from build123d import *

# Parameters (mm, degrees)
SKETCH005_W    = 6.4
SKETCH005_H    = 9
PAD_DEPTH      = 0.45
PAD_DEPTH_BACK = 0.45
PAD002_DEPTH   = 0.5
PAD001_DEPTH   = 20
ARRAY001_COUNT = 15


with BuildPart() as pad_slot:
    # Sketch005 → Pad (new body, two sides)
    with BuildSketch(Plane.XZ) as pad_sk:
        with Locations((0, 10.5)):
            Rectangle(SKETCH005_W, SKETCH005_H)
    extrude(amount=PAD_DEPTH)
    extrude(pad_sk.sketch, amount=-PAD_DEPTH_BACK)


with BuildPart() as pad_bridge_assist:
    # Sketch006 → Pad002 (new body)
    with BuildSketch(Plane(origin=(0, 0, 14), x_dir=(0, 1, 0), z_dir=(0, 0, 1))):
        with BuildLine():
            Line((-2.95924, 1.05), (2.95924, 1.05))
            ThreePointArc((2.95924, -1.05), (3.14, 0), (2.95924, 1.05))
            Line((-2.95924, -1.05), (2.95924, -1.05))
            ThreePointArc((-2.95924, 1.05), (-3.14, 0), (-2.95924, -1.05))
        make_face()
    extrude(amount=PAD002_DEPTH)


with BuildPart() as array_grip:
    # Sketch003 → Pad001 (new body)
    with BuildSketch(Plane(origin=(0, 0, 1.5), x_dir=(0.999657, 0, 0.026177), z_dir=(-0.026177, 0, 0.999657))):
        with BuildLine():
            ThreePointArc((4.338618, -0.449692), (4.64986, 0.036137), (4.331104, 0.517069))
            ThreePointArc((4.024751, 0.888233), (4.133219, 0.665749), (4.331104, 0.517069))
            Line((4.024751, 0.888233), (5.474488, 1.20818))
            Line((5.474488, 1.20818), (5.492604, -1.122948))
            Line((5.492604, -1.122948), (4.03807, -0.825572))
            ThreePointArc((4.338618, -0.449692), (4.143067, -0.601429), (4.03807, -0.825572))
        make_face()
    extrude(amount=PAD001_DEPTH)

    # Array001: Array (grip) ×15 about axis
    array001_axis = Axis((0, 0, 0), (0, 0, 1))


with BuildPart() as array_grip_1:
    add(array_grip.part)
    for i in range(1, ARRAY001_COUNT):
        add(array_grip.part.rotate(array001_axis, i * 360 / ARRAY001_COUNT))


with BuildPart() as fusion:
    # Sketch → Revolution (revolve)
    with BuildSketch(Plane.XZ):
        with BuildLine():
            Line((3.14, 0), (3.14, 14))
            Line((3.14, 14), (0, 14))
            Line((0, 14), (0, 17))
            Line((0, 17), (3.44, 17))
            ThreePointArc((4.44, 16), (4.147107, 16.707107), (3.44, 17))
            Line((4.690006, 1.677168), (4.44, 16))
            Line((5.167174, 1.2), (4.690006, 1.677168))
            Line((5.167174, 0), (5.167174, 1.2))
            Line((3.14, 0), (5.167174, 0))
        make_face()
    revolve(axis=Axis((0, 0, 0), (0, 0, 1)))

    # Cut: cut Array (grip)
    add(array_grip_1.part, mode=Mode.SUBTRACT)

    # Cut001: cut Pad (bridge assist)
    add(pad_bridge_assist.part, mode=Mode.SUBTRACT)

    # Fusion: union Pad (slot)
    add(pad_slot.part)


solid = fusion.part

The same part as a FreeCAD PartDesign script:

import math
import FreeCAD as App
import Part
import Sketcher
Q = App.Units.Quantity


def add_polygon(sketch, points):
    """Adds a closed chain of lines whose ends are joined by coincident constraints."""
    first, n = sketch.GeometryCount, len(points)
    for a, b in zip(points, points[1:] + points[:1]):
        sketch.addGeometry(Part.LineSegment(App.Vector(*a, 0), App.Vector(*b, 0)), False)
    for i in range(n):
        sketch.addConstraint(Sketcher.Constraint("Coincident", first + i, 2, first + (i + 1) % n, 1))

doc = App.newDocument("Part")
params = doc.addObject("Spreadsheet::Sheet", "Params")
for row, (alias, value) in enumerate([
    ("sketch1_height", "9 mm"),
    ("sketch1_width", "6.4 mm"),
    ("pad1_length", "0.45 mm"),
    ("pad1_length2", "0.45 mm"),
    ("pad2_length", "0.5 mm"),
    ("pad3_length", "20 mm"),
    ("sketch4_radius", "0.999999 mm"),
    ("sketch4_height", "14 mm"),
    ("sketch4_height2", "3 mm"),
    ("sketch4_height3", "1.2 mm"),
    ("sketch4_width", "3.44 mm"),
    ("revolution_angle", "360 deg"),
], start=1):
    params.set(f"A{row}", alias)
    params.set(f"B{row}", "=" + value)
    params.setAlias(f"B{row}", alias)

body = doc.addObject("PartDesign::Body", "Body")

sketch1 = body.newObject("Sketcher::SketchObject", "Sketch")
sketch1.AttachmentSupport = (doc.getObject("XZ_Plane"), [""])
sketch1.MapMode = "FlatFace"
add_polygon(sketch1, [(-3, 15), (-3, 6), (3, 6), (3, 15)])
sketch1.addConstraint([
    Sketcher.Constraint("Vertical", 0),
    Sketcher.Constraint("Horizontal", 1),
    Sketcher.Constraint("Vertical", 2),
    Sketcher.Constraint("Horizontal", 3),
    Sketcher.Constraint("DistanceY", 0, 2, 0, 1, Q("9 mm")),
    Sketcher.Constraint("DistanceX", 1, 1, 1, 2, Q("6.4 mm")),
    Sketcher.Constraint("DistanceY", -1, 1, 0, 2, Q("6 mm")),
    Sketcher.Constraint("DistanceX", 0, 2, -1, 1, Q("3.2 mm")),
])
sketch1.setExpression("Constraints[8]", "Params.sketch1_height")
sketch1.setExpression("Constraints[9]", "Params.sketch1_width")
pad1 = body.newObject("PartDesign::Pad", "Pad")
pad1.Profile = sketch1
pad1.Type = "TwoLengths"
pad1.setExpression("Length", "Params.pad1_length")
pad1.setExpression("Length2", "Params.pad1_length2")
body2 = doc.addObject("PartDesign::Body", "Body001")

sketch2 = body2.newObject("Sketcher::SketchObject", "Sketch001")
sketch2.AttachmentSupport = (doc.getObject("XY_Plane001"), [""])
sketch2.MapMode = "FlatFace"
sketch2.AttachmentOffset = App.Placement(App.Vector(0, 0, 14), App.Rotation())
sketch2.addGeometry([
    Part.LineSegment(App.Vector(-1.1, 3, 0), App.Vector(-1.1, -3, 0)),
    Part.ArcOfCircle(Part.Circle(App.Vector(0, 0, 0), App.Vector(0, 0, 1), 3.1), math.radians(-110), math.radians(-70)),
    Part.LineSegment(App.Vector(1.1, -3, 0), App.Vector(1.1, 3, 0)),
    Part.ArcOfCircle(Part.Circle(App.Vector(0, 0, 0), App.Vector(0, 0, 1), 3.1), math.radians(70), math.radians(110)),
], False)
sketch2.addConstraint([
    Sketcher.Constraint("Coincident", 0, 2, 1, 1),
    Sketcher.Constraint("Coincident", 1, 2, 2, 1),
    Sketcher.Constraint("Coincident", 2, 2, 3, 1),
    Sketcher.Constraint("Coincident", 3, 2, 0, 1),
    Sketcher.Constraint("Vertical", 0),
    Sketcher.Constraint("Vertical", 2),
    Sketcher.Constraint("Coincident", 1, 3, -1, 1),
    Sketcher.Constraint("Coincident", 3, 3, -1, 1),
    Sketcher.Constraint("Equal", 1, 3),
    Sketcher.Constraint("Horizontal", 0, 2, 1, 2),
    Sketcher.Constraint("DistanceX", 0, 2, 1, 2, Q("2.1 mm")),
    Sketcher.Constraint("Radius", 1, Q("3.140004 mm")),
])
pad2 = body2.newObject("PartDesign::Pad", "Pad001")
pad2.Profile = sketch2
pad2.setExpression("Length", "Params.pad2_length")
body3 = doc.addObject("PartDesign::Body", "Body002")

sketch3 = body3.newObject("Sketcher::SketchObject", "Sketch002")
sketch3.Placement = App.Placement(App.Vector(0, 0, 1.5), App.Rotation(App.Vector(0.999657323, 0, 0.026177008), App.Vector(0, 0.999999999, 0), App.Vector(-0.026177008, 0, 0.999657323), "ZXY"))
sketch3.addGeometry([
    Part.ArcOfCircle(Part.Circle(App.Vector(4.12, 0.03, 0), App.Vector(0, 0, 1), 0.53), math.radians(-66), math.radians(67)),
    Part.ArcOfCircle(Part.Circle(App.Vector(4.56, -0.93, 0), App.Vector(0, 0, 1), 0.53), math.radians(114), math.radians(168)),
    Part.LineSegment(App.Vector(4.04, -0.83, 0), App.Vector(5.49, -1.12, 0)),
    Part.LineSegment(App.Vector(5.49, -1.12, 0), App.Vector(5.47, 1.21, 0)),
    Part.LineSegment(App.Vector(5.47, 1.21, 0), App.Vector(4.02, 0.89, 0)),
    Part.ArcOfCircle(Part.Circle(App.Vector(4.54, 1, 0), App.Vector(0, 0, 1), 0.53), math.radians(-168), math.radians(-113)),
], False)
sketch3.addConstraint([
    Sketcher.Constraint("Coincident", 0, 1, 1, 1),
    Sketcher.Constraint("Coincident", 1, 2, 2, 1),
    Sketcher.Constraint("Coincident", 2, 2, 3, 1),
    Sketcher.Constraint("Coincident", 3, 2, 4, 1),
    Sketcher.Constraint("Coincident", 4, 2, 5, 1),
    Sketcher.Constraint("Coincident", 5, 2, 0, 2),
    Sketcher.Constraint("Equal", 2, 4),
    Sketcher.Constraint("Radius", 0, Q("0.5284 mm")),
    Sketcher.Constraint("Radius", 1, Q("0.528403 mm")),
    Sketcher.Constraint("Radius", 5, Q("0.528407 mm")),
    Sketcher.Constraint("Distance", 3, Q("2.331198 mm")),
    Sketcher.Constraint("DistanceY", 1, 2, 0, 3, Q("0.857602 mm")),
    Sketcher.Constraint("Distance", 2, Q("1.484622 mm")),
    Sketcher.Constraint("DistanceY", -1, 1, 0, 3, Q("0.03203 mm")),
    Sketcher.Constraint("DistanceX", -1, 1, 5, 3, Q("4.540741 mm")),
    Sketcher.Constraint("DistanceY", -1, 1, 5, 3, Q("1.002112 mm")),
    Sketcher.Constraint("DistanceY", 0, 1, -1, 1, Q("0.449692 mm")),
    Sketcher.Constraint("DistanceX", -1, 1, 1, 2, Q("4.03807 mm")),
    Sketcher.Constraint("DistanceY", -1, 1, 3, 2, Q("1.20818 mm")),
    Sketcher.Constraint("DistanceX", -1, 1, 4, 2, Q("4.024751 mm")),
    Sketcher.Constraint("DistanceY", -1, 1, 5, 2, Q("0.517069 mm")),
])
pad3 = body3.newObject("PartDesign::Pad", "Pad002")
pad3.Profile = sketch3
pad3.setExpression("Length", "Params.pad3_length")
body4 = doc.addObject("PartDesign::Body", "Body003")
doc.recompute()

body4.BaseFeature = body3
doc.recompute()

body5 = doc.addObject("PartDesign::Body", "Body004")
body5.BaseFeature = body3
body5.Placement = App.Placement(App.Vector(0, 0, 0), App.Rotation(App.Vector(0, 0, 1), 24))
boolean = body4.newObject("PartDesign::Boolean", "Boolean")
boolean.Type = "Fuse"
boolean.addObjects([body5])
doc.recompute()

body6 = doc.addObject("PartDesign::Body", "Body005")
body6.BaseFeature = body3
body6.Placement = App.Placement(App.Vector(0, 0, 0), App.Rotation(App.Vector(0, 0, 1), 48))
boolean2 = body4.newObject("PartDesign::Boolean", "Boolean001")
boolean2.Type = "Fuse"
boolean2.addObjects([body6])
doc.recompute()

body7 = doc.addObject("PartDesign::Body", "Body006")
body7.BaseFeature = body3
body7.Placement = App.Placement(App.Vector(0, 0, 0), App.Rotation(App.Vector(0, 0, 1), 72))
boolean3 = body4.newObject("PartDesign::Boolean", "Boolean002")
boolean3.Type = "Fuse"
boolean3.addObjects([body7])
doc.recompute()

body8 = doc.addObject("PartDesign::Body", "Body007")
body8.BaseFeature = body3
body8.Placement = App.Placement(App.Vector(0, 0, 0), App.Rotation(App.Vector(0, 0, 1), 96))
boolean4 = body4.newObject("PartDesign::Boolean", "Boolean003")
boolean4.Type = "Fuse"
boolean4.addObjects([body8])
doc.recompute()

body9 = doc.addObject("PartDesign::Body", "Body008")
body9.BaseFeature = body3
body9.Placement = App.Placement(App.Vector(0, 0, 0), App.Rotation(App.Vector(0, 0, 1), 120))
boolean5 = body4.newObject("PartDesign::Boolean", "Boolean004")
boolean5.Type = "Fuse"
boolean5.addObjects([body9])
doc.recompute()

body10 = doc.addObject("PartDesign::Body", "Body009")
body10.BaseFeature = body3
body10.Placement = App.Placement(App.Vector(0, 0, 0), App.Rotation(App.Vector(0, 0, 1), 144))
boolean6 = body4.newObject("PartDesign::Boolean", "Boolean005")
boolean6.Type = "Fuse"
boolean6.addObjects([body10])
doc.recompute()

body11 = doc.addObject("PartDesign::Body", "Body010")
body11.BaseFeature = body3
body11.Placement = App.Placement(App.Vector(0, 0, 0), App.Rotation(App.Vector(0, 0, 1), 168))
boolean7 = body4.newObject("PartDesign::Boolean", "Boolean006")
boolean7.Type = "Fuse"
boolean7.addObjects([body11])
doc.recompute()

body12 = doc.addObject("PartDesign::Body", "Body011")
body12.BaseFeature = body3
body12.Placement = App.Placement(App.Vector(0, 0, 0), App.Rotation(App.Vector(0, 0, 1), 192))
boolean8 = body4.newObject("PartDesign::Boolean", "Boolean007")
boolean8.Type = "Fuse"
boolean8.addObjects([body12])
doc.recompute()

body13 = doc.addObject("PartDesign::Body", "Body012")
body13.BaseFeature = body3
body13.Placement = App.Placement(App.Vector(0, 0, 0), App.Rotation(App.Vector(0, 0, 1), 216))
boolean9 = body4.newObject("PartDesign::Boolean", "Boolean008")
boolean9.Type = "Fuse"
boolean9.addObjects([body13])
doc.recompute()

body14 = doc.addObject("PartDesign::Body", "Body013")
body14.BaseFeature = body3
body14.Placement = App.Placement(App.Vector(0, 0, 0), App.Rotation(App.Vector(0, 0, 1), 240))
boolean10 = body4.newObject("PartDesign::Boolean", "Boolean009")
boolean10.Type = "Fuse"
boolean10.addObjects([body14])
doc.recompute()

body15 = doc.addObject("PartDesign::Body", "Body014")
body15.BaseFeature = body3
body15.Placement = App.Placement(App.Vector(0, 0, 0), App.Rotation(App.Vector(0, 0, 1), 264))
boolean11 = body4.newObject("PartDesign::Boolean", "Boolean010")
boolean11.Type = "Fuse"
boolean11.addObjects([body15])
doc.recompute()

body16 = doc.addObject("PartDesign::Body", "Body015")
body16.BaseFeature = body3
body16.Placement = App.Placement(App.Vector(0, 0, 0), App.Rotation(App.Vector(0, 0, 1), 288))
boolean12 = body4.newObject("PartDesign::Boolean", "Boolean011")
boolean12.Type = "Fuse"
boolean12.addObjects([body16])
doc.recompute()

body17 = doc.addObject("PartDesign::Body", "Body016")
body17.BaseFeature = body3
body17.Placement = App.Placement(App.Vector(0, 0, 0), App.Rotation(App.Vector(0, 0, 1), 312))
boolean13 = body4.newObject("PartDesign::Boolean", "Boolean012")
boolean13.Type = "Fuse"
boolean13.addObjects([body17])
doc.recompute()

body3.Placement = App.Placement(App.Vector(0, 0, 0), App.Rotation(App.Vector(0, 0, 1), 336))
boolean14 = body4.newObject("PartDesign::Boolean", "Boolean013")
boolean14.Type = "Fuse"
boolean14.addObjects([body3])
body18 = doc.addObject("PartDesign::Body", "Body017")

sketch4 = body18.newObject("Sketcher::SketchObject", "Sketch003")
sketch4.AttachmentSupport = (doc.getObject("XZ_Plane017"), [""])
sketch4.MapMode = "FlatFace"
sketch4.addGeometry([
    Part.LineSegment(App.Vector(3.1, 14, 0), App.Vector(3.1, 0, 0)),
    Part.LineSegment(App.Vector(3.1, 0, 0), App.Vector(5.2, 0, 0)),
    Part.LineSegment(App.Vector(5.2, 0, 0), App.Vector(5.2, 1.2, 0)),
    Part.LineSegment(App.Vector(5.2, 1.2, 0), App.Vector(4.7, 1.7, 0)),
    Part.LineSegment(App.Vector(4.7, 1.7, 0), App.Vector(4.4, 16, 0)),
    Part.ArcOfCircle(Part.Circle(App.Vector(3.4, 16, 0), App.Vector(0, 0, 1), 1), math.radians(0), math.radians(90)),
    Part.LineSegment(App.Vector(3.4, 17, 0), App.Vector(0, 17, 0)),
    Part.LineSegment(App.Vector(0, 17, 0), App.Vector(0, 14, 0)),
    Part.LineSegment(App.Vector(0, 14, 0), App.Vector(3.1, 14, 0)),
], False)
sketch4.addConstraint([
    Sketcher.Constraint("Coincident", 0, 2, 1, 1),
    Sketcher.Constraint("Coincident", 1, 2, 2, 1),
    Sketcher.Constraint("Coincident", 2, 2, 3, 1),
    Sketcher.Constraint("Coincident", 3, 2, 4, 1),
    Sketcher.Constraint("Coincident", 4, 2, 5, 1),
    Sketcher.Constraint("Tangent", 5, 2, 6, 1),
    Sketcher.Constraint("Coincident", 6, 2, 7, 1),
    Sketcher.Constraint("Coincident", 7, 2, 8, 1),
    Sketcher.Constraint("Coincident", 8, 2, 0, 1),
    Sketcher.Constraint("Vertical", 0),
    Sketcher.Constraint("Horizontal", 1),
    Sketcher.Constraint("Vertical", 2),
    Sketcher.Constraint("Horizontal", 6),
    Sketcher.Constraint("Vertical", 7),
    Sketcher.Constraint("Horizontal", 8),
    Sketcher.Constraint("PointOnObject", 0, 2, -1),
    Sketcher.Constraint("PointOnObject", 6, 2, -2),
    Sketcher.Constraint("Horizontal", 5, 3, 4, 2),
    Sketcher.Constraint("Radius", 5, Q("0.999999 mm")),
    Sketcher.Constraint("DistanceY", 0, 2, 0, 1, Q("14 mm")),
    Sketcher.Constraint("DistanceY", 7, 2, 7, 1, Q("3 mm")),
    Sketcher.Constraint("Angle", 3, Q("135 deg")),
    Sketcher.Constraint("Angle", 4, Q("91 deg")),
    Sketcher.Constraint("DistanceY", 2, 1, 2, 2, Q("1.2 mm")),
    Sketcher.Constraint("DistanceX", 6, 2, 6, 1, Q("3.44 mm")),
    Sketcher.Constraint("DistanceX", 8, 1, 8, 2, Q("3.14 mm")),
    Sketcher.Constraint("DistanceX", 1, 1, 1, 2, Q("2.027174 mm")),
])
sketch4.setExpression("Constraints[18]", "Params.sketch4_radius")
sketch4.setExpression("Constraints[19]", "Params.sketch4_height")
sketch4.setExpression("Constraints[20]", "Params.sketch4_height2")
sketch4.setExpression("Constraints[23]", "Params.sketch4_height3")
sketch4.setExpression("Constraints[24]", "Params.sketch4_width")
revolution = body18.newObject("PartDesign::Revolution", "Revolution")
revolution.Profile = sketch4
revolution.ReferenceAxis = (sketch4, ["V_Axis"])
revolution.setExpression("Angle", "Params.revolution_angle")
doc.recompute()

boolean15 = body18.newObject("PartDesign::Boolean", "Boolean014")
boolean15.Type = "Cut"
boolean15.addObjects([body4])
doc.recompute()

boolean16 = body18.newObject("PartDesign::Boolean", "Boolean015")
boolean16.Type = "Cut"
boolean16.addObjects([body2])
doc.recompute()

boolean17 = body18.newObject("PartDesign::Boolean", "Boolean016")
boolean17.Type = "Fuse"
boolean17.addObjects([body])

doc.recompute()
